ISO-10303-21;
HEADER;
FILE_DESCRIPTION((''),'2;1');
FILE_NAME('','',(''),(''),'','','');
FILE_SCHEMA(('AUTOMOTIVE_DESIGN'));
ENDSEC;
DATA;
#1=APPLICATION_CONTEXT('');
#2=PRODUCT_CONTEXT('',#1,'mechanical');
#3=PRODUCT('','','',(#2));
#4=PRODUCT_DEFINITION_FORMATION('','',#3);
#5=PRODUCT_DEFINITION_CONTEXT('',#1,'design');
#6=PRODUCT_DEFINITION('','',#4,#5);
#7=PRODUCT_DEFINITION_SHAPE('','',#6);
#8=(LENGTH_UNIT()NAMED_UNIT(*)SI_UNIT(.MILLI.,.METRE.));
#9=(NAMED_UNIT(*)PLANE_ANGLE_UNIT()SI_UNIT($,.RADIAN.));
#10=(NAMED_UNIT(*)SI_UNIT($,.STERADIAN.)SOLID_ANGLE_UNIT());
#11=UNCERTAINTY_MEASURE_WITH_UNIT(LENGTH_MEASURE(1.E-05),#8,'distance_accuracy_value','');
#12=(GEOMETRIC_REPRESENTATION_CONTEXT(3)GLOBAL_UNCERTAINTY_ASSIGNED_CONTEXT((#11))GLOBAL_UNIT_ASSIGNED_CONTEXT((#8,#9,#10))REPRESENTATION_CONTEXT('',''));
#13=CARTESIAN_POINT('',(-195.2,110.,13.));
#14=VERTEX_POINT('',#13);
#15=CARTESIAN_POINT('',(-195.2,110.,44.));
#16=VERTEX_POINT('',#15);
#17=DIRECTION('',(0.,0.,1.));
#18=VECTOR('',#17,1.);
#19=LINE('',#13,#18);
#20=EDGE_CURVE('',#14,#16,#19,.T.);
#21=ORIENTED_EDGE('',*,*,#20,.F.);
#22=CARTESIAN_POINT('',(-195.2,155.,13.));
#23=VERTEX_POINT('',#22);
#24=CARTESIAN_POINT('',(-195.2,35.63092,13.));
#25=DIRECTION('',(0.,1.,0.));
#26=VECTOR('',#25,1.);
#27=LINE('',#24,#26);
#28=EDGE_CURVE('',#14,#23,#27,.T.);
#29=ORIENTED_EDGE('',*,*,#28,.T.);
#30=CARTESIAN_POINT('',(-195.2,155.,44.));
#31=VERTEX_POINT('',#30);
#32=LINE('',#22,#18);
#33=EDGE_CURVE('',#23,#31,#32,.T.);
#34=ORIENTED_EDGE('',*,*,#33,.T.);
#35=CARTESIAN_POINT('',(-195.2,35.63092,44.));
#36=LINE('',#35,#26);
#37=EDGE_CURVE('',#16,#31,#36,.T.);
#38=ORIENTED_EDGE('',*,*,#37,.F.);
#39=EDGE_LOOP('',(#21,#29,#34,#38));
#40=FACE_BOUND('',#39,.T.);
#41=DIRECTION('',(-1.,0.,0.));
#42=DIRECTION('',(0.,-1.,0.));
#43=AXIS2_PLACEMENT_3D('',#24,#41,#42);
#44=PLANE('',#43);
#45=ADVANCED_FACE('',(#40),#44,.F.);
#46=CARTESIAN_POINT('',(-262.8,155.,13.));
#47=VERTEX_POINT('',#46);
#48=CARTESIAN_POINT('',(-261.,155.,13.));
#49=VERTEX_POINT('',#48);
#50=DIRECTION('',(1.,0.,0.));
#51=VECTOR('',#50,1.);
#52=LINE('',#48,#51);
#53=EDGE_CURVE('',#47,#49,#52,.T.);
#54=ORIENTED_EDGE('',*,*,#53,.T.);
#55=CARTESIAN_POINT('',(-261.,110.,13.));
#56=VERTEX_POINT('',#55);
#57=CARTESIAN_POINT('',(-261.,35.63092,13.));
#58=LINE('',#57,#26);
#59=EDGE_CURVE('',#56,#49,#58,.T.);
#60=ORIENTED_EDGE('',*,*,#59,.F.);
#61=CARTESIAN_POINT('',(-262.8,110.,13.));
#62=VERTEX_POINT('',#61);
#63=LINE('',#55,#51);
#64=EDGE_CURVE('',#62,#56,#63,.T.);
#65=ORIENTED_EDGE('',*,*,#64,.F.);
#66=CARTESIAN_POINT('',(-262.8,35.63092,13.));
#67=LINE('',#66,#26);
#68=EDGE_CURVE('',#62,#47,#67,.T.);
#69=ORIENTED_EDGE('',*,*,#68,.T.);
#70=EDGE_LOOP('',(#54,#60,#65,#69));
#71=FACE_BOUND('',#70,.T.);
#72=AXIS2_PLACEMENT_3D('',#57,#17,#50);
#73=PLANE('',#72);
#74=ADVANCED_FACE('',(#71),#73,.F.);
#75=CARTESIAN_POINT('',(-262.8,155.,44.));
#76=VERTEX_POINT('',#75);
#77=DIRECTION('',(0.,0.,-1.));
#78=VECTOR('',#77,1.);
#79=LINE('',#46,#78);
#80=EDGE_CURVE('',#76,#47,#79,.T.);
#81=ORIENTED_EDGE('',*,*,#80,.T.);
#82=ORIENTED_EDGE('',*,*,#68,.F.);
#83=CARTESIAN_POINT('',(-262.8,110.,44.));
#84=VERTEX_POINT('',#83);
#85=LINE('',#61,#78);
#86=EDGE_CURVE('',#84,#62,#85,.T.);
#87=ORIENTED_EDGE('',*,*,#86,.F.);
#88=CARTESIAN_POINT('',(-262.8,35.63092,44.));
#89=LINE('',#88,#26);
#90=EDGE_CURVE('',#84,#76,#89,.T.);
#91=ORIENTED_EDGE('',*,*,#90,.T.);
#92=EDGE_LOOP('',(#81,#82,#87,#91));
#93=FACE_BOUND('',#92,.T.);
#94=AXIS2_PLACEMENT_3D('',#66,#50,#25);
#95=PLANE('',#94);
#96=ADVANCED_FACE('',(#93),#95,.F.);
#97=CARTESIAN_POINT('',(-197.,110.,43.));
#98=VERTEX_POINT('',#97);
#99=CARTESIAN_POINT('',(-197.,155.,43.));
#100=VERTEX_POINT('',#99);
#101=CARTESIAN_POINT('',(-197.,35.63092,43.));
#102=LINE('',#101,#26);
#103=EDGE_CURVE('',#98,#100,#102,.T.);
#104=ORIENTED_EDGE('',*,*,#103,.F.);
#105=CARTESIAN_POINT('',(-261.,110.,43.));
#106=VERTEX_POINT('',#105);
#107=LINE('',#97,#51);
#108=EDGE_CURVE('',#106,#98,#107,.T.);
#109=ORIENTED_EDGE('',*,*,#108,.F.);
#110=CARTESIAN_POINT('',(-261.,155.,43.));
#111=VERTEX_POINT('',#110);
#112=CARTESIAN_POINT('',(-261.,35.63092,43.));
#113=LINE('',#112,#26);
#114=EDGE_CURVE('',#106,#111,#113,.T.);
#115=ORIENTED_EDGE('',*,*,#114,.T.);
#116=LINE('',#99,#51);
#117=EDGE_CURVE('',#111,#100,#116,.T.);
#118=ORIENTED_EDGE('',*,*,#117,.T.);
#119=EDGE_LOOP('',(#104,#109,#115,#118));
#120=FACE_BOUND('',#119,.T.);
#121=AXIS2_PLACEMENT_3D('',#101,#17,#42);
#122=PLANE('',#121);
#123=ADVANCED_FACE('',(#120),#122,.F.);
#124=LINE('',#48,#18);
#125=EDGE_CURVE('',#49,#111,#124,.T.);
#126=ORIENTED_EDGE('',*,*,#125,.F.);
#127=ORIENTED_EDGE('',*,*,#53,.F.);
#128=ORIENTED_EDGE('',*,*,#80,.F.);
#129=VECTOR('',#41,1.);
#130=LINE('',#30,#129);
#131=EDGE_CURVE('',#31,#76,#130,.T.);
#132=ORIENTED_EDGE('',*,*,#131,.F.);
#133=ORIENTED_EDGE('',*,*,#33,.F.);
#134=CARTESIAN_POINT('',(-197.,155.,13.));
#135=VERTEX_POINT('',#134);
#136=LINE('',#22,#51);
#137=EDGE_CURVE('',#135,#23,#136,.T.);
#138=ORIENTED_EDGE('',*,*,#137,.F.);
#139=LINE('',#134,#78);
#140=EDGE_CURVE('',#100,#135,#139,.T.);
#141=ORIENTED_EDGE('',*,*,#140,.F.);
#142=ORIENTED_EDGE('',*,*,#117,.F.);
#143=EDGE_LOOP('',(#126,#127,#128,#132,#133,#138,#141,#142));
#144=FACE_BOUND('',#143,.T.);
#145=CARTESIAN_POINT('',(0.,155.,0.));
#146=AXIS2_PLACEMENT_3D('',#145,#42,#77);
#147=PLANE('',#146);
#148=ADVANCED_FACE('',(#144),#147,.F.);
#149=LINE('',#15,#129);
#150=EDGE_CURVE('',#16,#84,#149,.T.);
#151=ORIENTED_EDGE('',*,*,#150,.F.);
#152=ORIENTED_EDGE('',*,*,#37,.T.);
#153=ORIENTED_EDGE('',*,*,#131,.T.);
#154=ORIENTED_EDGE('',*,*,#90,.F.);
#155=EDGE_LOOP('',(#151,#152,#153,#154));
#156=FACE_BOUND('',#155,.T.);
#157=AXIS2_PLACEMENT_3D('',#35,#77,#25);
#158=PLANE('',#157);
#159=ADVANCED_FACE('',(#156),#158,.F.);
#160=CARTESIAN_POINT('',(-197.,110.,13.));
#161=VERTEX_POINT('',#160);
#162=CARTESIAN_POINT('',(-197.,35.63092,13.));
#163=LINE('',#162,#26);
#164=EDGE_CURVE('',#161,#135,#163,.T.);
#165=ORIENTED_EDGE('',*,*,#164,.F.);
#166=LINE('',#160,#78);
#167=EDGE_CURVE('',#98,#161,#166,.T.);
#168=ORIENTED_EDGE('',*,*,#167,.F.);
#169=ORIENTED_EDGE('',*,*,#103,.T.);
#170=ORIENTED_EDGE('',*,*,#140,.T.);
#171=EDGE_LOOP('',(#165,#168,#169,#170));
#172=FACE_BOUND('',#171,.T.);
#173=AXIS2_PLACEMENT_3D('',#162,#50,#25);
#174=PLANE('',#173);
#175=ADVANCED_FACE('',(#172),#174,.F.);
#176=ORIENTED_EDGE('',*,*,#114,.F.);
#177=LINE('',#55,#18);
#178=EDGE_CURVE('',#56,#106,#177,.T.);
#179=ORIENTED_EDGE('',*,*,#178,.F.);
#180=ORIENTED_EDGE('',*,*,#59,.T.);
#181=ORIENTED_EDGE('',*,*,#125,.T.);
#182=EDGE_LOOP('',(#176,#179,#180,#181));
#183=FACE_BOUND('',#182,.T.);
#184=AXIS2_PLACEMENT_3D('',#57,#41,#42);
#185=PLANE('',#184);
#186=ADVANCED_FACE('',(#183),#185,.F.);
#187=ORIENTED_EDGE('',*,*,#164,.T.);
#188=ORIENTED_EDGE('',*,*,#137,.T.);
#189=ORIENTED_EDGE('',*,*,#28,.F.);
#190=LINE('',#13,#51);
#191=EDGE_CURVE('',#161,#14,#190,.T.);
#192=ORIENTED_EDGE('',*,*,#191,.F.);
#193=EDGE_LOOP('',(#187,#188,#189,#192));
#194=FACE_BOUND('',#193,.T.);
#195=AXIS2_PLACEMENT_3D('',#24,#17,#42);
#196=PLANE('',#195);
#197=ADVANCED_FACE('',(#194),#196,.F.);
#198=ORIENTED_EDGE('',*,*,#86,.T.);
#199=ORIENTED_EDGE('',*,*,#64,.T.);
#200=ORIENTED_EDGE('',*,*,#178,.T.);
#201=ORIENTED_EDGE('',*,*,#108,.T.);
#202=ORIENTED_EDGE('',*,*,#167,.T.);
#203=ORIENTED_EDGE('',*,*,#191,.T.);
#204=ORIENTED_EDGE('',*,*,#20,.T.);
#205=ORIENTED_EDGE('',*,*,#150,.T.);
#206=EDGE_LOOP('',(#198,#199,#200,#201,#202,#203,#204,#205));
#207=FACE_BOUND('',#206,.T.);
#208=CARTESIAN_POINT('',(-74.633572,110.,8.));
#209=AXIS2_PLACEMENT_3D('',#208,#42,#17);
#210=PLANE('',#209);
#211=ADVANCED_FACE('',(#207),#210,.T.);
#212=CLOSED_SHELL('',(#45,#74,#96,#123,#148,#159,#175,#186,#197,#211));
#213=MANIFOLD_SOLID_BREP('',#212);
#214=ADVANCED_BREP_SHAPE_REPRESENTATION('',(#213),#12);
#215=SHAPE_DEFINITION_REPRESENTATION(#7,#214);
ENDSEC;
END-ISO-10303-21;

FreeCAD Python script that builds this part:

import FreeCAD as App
import Part
import Sketcher
Q = App.Units.Quantity


def add_polygon(sketch, points):
    """Adds a closed chain of lines whose ends are joined by coincident constraints."""
    first, n = sketch.GeometryCount, len(points)
    for a, b in zip(points, points[1:] + points[:1]):
        sketch.addGeometry(Part.LineSegment(App.Vector(*a, 0), App.Vector(*b, 0)), False)
    for i in range(n):
        sketch.addConstraint(Sketcher.Constraint("Coincident", first + i, 2, first + (i + 1) % n, 1))

doc = App.newDocument("Part")
params = doc.addObject("Spreadsheet::Sheet", "Params")
for row, (alias, value) in enumerate([
    ("sketch1_width", "64 mm"),
    ("sketch1_height", "31 mm"),
    ("sketch1_height2", "30 mm"),
    ("sketch1_width2", "1.8 mm"),
    ("pad1_length", "45 mm"),
], start=1):
    params.set(f"A{row}", alias)
    params.set(f"B{row}", "=" + value)
    params.setAlias(f"B{row}", alias)

body = doc.addObject("PartDesign::Body", "Body")

sketch1 = body.newObject("Sketcher::SketchObject", "Sketch")
sketch1.AttachmentSupport = (doc.getObject("XZ_Plane"), [""])
sketch1.MapMode = "FlatFace"
sketch1.AttachmentOffset = App.Placement(App.Vector(0, 0, -155), App.Rotation())
add_polygon(sketch1, [(-197, 13), (-195.2, 13), (-195.2, 44), (-262.8, 44), (-262.8, 13), (-261, 13), (-261, 43), (-197, 43)])
sketch1.addConstraint(Sketcher.Constraint("Horizontal", 0))
sketch1.addConstraint(Sketcher.Constraint("Vertical", 1))
sketch1.addConstraint(Sketcher.Constraint("Horizontal", 2))
sketch1.addConstraint(Sketcher.Constraint("Vertical", 3))
sketch1.addConstraint(Sketcher.Constraint("Horizontal", 4))
sketch1.addConstraint(Sketcher.Constraint("Vertical", 5))
sketch1.addConstraint(Sketcher.Constraint("Horizontal", 6))
sketch1.addConstraint(Sketcher.Constraint("Vertical", 7))
sketch1.addConstraint(Sketcher.Constraint("Horizontal", 0, 2, 3, 2))
sketch1.addConstraint(Sketcher.Constraint("Equal", 0, 4))
sketch1.addConstraint(Sketcher.Constraint("DistanceX", 6, 1, 6, 2, Q("64 mm")))
sketch1.addConstraint(Sketcher.Constraint("DistanceY", 1, 1, 1, 2, Q("31 mm")))
sketch1.addConstraint(Sketcher.Constraint("DistanceY", 5, 1, 5, 2, Q("30 mm")))
sketch1.addConstraint(Sketcher.Constraint("DistanceX", 0, 1, 0, 2, Q("1.8 mm")))
sketch1.addConstraint(Sketcher.Constraint("DistanceY", -1, 1, 0, 2, Q("13 mm")))
sketch1.addConstraint(Sketcher.Constraint("DistanceX", 4, 2, -1, 1, Q("261 mm")))
sketch1.setExpression("Constraints[18]", "Params.sketch1_width")
sketch1.setExpression("Constraints[19]", "Params.sketch1_height")
sketch1.setExpression("Constraints[20]", "Params.sketch1_height2")
sketch1.setExpression("Constraints[21]", "Params.sketch1_width2")
pad1 = body.newObject("PartDesign::Pad", "Pad")
pad1.Profile = sketch1
pad1.setExpression("Length", "Params.pad1_length")

doc.recompute()
